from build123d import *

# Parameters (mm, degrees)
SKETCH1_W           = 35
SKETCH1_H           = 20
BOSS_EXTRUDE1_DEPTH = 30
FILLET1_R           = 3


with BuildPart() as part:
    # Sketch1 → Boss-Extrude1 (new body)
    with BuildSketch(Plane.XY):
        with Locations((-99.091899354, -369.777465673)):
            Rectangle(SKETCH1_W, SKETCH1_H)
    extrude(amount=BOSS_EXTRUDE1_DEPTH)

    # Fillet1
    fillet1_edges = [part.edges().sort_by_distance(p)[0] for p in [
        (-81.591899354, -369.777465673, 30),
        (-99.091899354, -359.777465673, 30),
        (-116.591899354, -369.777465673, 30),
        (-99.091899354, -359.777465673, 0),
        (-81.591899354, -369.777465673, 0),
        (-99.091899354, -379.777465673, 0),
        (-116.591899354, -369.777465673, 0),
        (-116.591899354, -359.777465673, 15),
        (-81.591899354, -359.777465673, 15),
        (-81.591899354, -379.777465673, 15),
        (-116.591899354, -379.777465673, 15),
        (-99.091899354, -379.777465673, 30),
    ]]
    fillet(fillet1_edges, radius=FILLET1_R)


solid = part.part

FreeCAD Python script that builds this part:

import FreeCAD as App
import Part
import Sketcher
from FreeCAD import Vector

doc = App.newDocument("Part")
body = doc.addObject("PartDesign::Body", "Body")

# Sketch on XY plane
sketch1 = doc.addObject("Sketcher::SketchObject", "Sketch")
body.addObject(sketch1)
sketch1.AttachmentSupport = (doc.XY_Plane, [""])
sketch1.MapMode = "FlatFace"
sketch1.addGeometry(Part.LineSegment(Vector(-117, -360, 0), Vector(-117, -380, 0)), False)
sketch1.addGeometry(Part.LineSegment(Vector(-117, -380, 0), Vector(-82, -380, 0)), False)
sketch1.addGeometry(Part.LineSegment(Vector(-82, -380, 0), Vector(-82, -360, 0)), False)
sketch1.addGeometry(Part.LineSegment(Vector(-82, -360, 0), Vector(-117, -360, 0)), False)
sketch1.addConstraint(Sketcher.Constraint("Coincident", 0, 2, 1, 1))
sketch1.addConstraint(Sketcher.Constraint("Coincident", 1, 2, 2, 1))
sketch1.addConstraint(Sketcher.Constraint("Coincident", 2, 2, 3, 1))
sketch1.addConstraint(Sketcher.Constraint("Coincident", 3, 2, 0, 1))
sketch1.addConstraint(Sketcher.Constraint("Vertical", 0))
sketch1.addConstraint(Sketcher.Constraint("Horizontal", 1))
sketch1.addConstraint(Sketcher.Constraint("Vertical", 2))
sketch1.addConstraint(Sketcher.Constraint("Horizontal", 3))
sketch1.addConstraint(Sketcher.Constraint("DistanceX", 1, 1, 1, 2, 35.0))
sketch1.addConstraint(Sketcher.Constraint("DistanceY", 0, 2, 0, 1, 20.0))
sketch1.addConstraint(Sketcher.Constraint("DistanceX", 0, 2, -1, 1, 116.591899))
sketch1.addConstraint(Sketcher.Constraint("DistanceY", 0, 2, -1, 1, 379.777466))
pad1 = doc.addObject("PartDesign::Pad", "Pad")
body.addObject(pad1)
pad1.Profile = sketch1
pad1.Length = 30
doc.recompute()

fillet = doc.addObject("PartDesign::Fillet", "Fillet")
body.addObject(fillet)
fillet.Base = (pad1, ["Edge1"])
fillet.UseAllEdges = True
fillet.Radius = 3

doc.recompute()
